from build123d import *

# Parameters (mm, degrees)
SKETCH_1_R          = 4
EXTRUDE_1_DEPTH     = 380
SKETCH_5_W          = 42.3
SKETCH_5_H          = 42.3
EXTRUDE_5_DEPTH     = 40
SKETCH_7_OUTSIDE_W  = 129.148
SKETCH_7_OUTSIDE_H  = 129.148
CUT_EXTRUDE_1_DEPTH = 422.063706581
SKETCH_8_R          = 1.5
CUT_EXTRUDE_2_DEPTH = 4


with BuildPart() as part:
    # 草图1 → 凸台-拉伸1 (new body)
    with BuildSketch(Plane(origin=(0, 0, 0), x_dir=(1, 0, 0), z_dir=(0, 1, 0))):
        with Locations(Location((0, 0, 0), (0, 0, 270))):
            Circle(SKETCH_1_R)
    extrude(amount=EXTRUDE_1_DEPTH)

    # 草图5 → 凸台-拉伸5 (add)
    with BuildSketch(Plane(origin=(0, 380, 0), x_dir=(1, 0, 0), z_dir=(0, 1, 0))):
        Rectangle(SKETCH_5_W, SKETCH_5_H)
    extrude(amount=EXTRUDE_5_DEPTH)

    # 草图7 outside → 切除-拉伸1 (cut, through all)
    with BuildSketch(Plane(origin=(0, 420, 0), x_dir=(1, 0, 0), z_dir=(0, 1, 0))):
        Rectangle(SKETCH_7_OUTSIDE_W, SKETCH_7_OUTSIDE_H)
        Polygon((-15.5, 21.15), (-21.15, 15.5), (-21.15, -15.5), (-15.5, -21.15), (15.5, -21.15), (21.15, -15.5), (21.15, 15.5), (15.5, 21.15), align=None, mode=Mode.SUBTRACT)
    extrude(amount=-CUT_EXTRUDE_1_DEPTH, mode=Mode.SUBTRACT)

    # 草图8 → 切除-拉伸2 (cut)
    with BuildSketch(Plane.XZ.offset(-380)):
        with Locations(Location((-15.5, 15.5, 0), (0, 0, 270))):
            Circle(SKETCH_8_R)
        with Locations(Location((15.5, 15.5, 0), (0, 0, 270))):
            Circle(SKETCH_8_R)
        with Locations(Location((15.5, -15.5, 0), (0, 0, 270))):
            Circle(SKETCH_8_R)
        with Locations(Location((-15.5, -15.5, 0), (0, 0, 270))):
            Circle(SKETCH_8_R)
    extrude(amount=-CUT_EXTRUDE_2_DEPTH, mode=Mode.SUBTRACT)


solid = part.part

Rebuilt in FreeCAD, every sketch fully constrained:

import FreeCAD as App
import Part
import Sketcher

V = App.Vector
Q = App.Units.Quantity


def add_polygon(sketch, points):
    """Adds a closed chain of lines whose ends are joined by coincident constraints."""
    first, n = sketch.GeometryCount, len(points)
    for a, b in zip(points, points[1:] + points[:1]):
        sketch.addGeometry(Part.LineSegment(App.Vector(*a, 0), App.Vector(*b, 0)), False)
    for i in range(n):
        sketch.addConstraint(Sketcher.Constraint("Coincident", first + i, 2, first + (i + 1) % n, 1))

doc = App.newDocument("Part")
body = doc.addObject("PartDesign::Body", "Body")

# Sketch on XZ plane
sketch1 = body.newObject("Sketcher::SketchObject", "Sketch")
sketch1.AttachmentSupport = (doc.getObject("XZ_Plane"), [""])
sketch1.MapMode = "FlatFace"
sketch1.addGeometry(Part.Circle(V(0, 0, 0), V(0, 0, 1), 4), False)
sketch1.addConstraint([
    Sketcher.Constraint("Coincident", 0, 3, -1, 1),
    Sketcher.Constraint("Diameter", 0, Q("8 mm")),
])
pad1 = body.newObject("PartDesign::Pad", "Pad")
pad1.Profile = sketch1
pad1.Length = 380
pad1.Reversed = True

# Sketch on XZ plane
sketch2 = body.newObject("Sketcher::SketchObject", "Sketch001")
sketch2.AttachmentSupport = (doc.getObject("XZ_Plane"), [""])
sketch2.MapMode = "FlatFace"
sketch2.AttachmentOffset = App.Placement(V(0, 0, -380), App.Rotation())
add_polygon(sketch2, [(-21.15, -21.15), (-21.15, 21.15), (21.15, 21.15), (21.15, -21.15)])  # lines 0-3
sketch2.addConstraint([
    Sketcher.Constraint("Vertical", 0),
    Sketcher.Constraint("Horizontal", 1),
    Sketcher.Constraint("Vertical", 2),
    Sketcher.Constraint("Horizontal", 3),
    Sketcher.Constraint("Symmetric", 0, 2, 2, 2, -1, 1),
    Sketcher.Constraint("Equal", 3, 0),
    Sketcher.Constraint("DistanceX", 1, 1, 1, 2, Q("42.3 mm")),
])
pad2 = body.newObject("PartDesign::Pad", "Pad001")
pad2.Profile = sketch2
pad2.Length = 40
pad2.Reversed = True

# Sketch on XZ plane
sketch3 = body.newObject("Sketcher::SketchObject", "Sketch002")
sketch3.AttachmentSupport = (doc.getObject("XZ_Plane"), [""])
sketch3.MapMode = "FlatFace"
sketch3.AttachmentOffset = App.Placement(V(0, 0, -420), App.Rotation())
add_polygon(sketch3, [(-64.574, -64.574), (-64.574, 64.574), (64.574, 64.574), (64.574, -64.574)])  # lines 0-3
add_polygon(sketch3, [(-21.15, -15.5), (-15.5, -21.15), (15.5, -21.15), (21.15, -15.5), (21.15, 15.5), (15.5, 21.15), (-15.5, 21.15), (-21.15, 15.5)])  # lines 4-11
sketch3.addConstraint([
    Sketcher.Constraint("Vertical", 0),
    Sketcher.Constraint("Horizontal", 1),
    Sketcher.Constraint("Vertical", 2),
    Sketcher.Constraint("Horizontal", 3),
    Sketcher.Constraint("Horizontal", 5),
    Sketcher.Constraint("Vertical", 7),
    Sketcher.Constraint("Horizontal", 9),
    Sketcher.Constraint("Vertical", 11),
    Sketcher.Constraint("Symmetric", 0, 2, 2, 2, -1, 1),
    Sketcher.Constraint("Symmetric", 4, 2, 8, 2, -1, 1),
    Sketcher.Constraint("Symmetric", 6, 2, 10, 2, -1, 1),
    Sketcher.Constraint("Perpendicular", 4, 6),
    Sketcher.Constraint("Perpendicular", 6, 8),
    Sketcher.Constraint("Perpendicular", 8, 10),
    Sketcher.Constraint("Horizontal", 7, 2, 10, 2),
    Sketcher.Constraint("Vertical", 5, 2, 8, 2),
    Sketcher.Constraint("Equal", 3, 0),
    Sketcher.Constraint("Equal", 9, 7),
    Sketcher.Constraint("DistanceX", 5, 1, 5, 2, Q("31 mm")),
    Sketcher.Constraint("DistanceY", 5, 2, 8, 2, Q("42.3 mm")),
    Sketcher.Constraint("DistanceX", 1, 1, 1, 2, Q("129.148 mm")),
])
pocket1 = body.newObject("PartDesign::Pocket", "Pocket")
pocket1.Profile = sketch3
pocket1.Type = "ThroughAll"
pocket1.Reversed = True

# Sketch on XZ plane
sketch4 = body.newObject("Sketcher::SketchObject", "Sketch003")
sketch4.AttachmentSupport = (doc.getObject("XZ_Plane"), [""])
sketch4.MapMode = "FlatFace"
sketch4.AttachmentOffset = App.Placement(V(0, 0, -380), App.Rotation())
sketch4.addGeometry([
    Part.Circle(V(-15.5, 15.5, 0), V(0, 0, 1), 1.5),
    Part.Circle(V(15.5, 15.5, 0), V(0, 0, 1), 1.5),
    Part.Circle(V(15.5, -15.5, 0), V(0, 0, 1), 1.5),
    Part.Circle(V(-15.5, -15.5, 0), V(0, 0, 1), 1.5),
], False)
sketch4.addConstraint([
    Sketcher.Constraint("Equal", 0, 1),
    Sketcher.Constraint("Equal", 1, 2),
    Sketcher.Constraint("Equal", 2, 3),
    Sketcher.Constraint("Symmetric", 0, 3, 2, 3, -1, 1),
    Sketcher.Constraint("Symmetric", 1, 3, 3, 3, -1, 1),
    Sketcher.Constraint("Symmetric", 0, 3, 1, 3, -2),
    Sketcher.Constraint("Diameter", 0, Q("3 mm")),
    Sketcher.Constraint("DistanceX", 0, 3, 1, 3, Q("31 mm")),
    Sketcher.Constraint("DistanceY", 2, 3, 1, 3, Q("31 mm")),
])
pocket2 = body.newObject("PartDesign::Pocket", "Pocket001")
pocket2.Profile = sketch4
pocket2.Length = 4

doc.recompute()
